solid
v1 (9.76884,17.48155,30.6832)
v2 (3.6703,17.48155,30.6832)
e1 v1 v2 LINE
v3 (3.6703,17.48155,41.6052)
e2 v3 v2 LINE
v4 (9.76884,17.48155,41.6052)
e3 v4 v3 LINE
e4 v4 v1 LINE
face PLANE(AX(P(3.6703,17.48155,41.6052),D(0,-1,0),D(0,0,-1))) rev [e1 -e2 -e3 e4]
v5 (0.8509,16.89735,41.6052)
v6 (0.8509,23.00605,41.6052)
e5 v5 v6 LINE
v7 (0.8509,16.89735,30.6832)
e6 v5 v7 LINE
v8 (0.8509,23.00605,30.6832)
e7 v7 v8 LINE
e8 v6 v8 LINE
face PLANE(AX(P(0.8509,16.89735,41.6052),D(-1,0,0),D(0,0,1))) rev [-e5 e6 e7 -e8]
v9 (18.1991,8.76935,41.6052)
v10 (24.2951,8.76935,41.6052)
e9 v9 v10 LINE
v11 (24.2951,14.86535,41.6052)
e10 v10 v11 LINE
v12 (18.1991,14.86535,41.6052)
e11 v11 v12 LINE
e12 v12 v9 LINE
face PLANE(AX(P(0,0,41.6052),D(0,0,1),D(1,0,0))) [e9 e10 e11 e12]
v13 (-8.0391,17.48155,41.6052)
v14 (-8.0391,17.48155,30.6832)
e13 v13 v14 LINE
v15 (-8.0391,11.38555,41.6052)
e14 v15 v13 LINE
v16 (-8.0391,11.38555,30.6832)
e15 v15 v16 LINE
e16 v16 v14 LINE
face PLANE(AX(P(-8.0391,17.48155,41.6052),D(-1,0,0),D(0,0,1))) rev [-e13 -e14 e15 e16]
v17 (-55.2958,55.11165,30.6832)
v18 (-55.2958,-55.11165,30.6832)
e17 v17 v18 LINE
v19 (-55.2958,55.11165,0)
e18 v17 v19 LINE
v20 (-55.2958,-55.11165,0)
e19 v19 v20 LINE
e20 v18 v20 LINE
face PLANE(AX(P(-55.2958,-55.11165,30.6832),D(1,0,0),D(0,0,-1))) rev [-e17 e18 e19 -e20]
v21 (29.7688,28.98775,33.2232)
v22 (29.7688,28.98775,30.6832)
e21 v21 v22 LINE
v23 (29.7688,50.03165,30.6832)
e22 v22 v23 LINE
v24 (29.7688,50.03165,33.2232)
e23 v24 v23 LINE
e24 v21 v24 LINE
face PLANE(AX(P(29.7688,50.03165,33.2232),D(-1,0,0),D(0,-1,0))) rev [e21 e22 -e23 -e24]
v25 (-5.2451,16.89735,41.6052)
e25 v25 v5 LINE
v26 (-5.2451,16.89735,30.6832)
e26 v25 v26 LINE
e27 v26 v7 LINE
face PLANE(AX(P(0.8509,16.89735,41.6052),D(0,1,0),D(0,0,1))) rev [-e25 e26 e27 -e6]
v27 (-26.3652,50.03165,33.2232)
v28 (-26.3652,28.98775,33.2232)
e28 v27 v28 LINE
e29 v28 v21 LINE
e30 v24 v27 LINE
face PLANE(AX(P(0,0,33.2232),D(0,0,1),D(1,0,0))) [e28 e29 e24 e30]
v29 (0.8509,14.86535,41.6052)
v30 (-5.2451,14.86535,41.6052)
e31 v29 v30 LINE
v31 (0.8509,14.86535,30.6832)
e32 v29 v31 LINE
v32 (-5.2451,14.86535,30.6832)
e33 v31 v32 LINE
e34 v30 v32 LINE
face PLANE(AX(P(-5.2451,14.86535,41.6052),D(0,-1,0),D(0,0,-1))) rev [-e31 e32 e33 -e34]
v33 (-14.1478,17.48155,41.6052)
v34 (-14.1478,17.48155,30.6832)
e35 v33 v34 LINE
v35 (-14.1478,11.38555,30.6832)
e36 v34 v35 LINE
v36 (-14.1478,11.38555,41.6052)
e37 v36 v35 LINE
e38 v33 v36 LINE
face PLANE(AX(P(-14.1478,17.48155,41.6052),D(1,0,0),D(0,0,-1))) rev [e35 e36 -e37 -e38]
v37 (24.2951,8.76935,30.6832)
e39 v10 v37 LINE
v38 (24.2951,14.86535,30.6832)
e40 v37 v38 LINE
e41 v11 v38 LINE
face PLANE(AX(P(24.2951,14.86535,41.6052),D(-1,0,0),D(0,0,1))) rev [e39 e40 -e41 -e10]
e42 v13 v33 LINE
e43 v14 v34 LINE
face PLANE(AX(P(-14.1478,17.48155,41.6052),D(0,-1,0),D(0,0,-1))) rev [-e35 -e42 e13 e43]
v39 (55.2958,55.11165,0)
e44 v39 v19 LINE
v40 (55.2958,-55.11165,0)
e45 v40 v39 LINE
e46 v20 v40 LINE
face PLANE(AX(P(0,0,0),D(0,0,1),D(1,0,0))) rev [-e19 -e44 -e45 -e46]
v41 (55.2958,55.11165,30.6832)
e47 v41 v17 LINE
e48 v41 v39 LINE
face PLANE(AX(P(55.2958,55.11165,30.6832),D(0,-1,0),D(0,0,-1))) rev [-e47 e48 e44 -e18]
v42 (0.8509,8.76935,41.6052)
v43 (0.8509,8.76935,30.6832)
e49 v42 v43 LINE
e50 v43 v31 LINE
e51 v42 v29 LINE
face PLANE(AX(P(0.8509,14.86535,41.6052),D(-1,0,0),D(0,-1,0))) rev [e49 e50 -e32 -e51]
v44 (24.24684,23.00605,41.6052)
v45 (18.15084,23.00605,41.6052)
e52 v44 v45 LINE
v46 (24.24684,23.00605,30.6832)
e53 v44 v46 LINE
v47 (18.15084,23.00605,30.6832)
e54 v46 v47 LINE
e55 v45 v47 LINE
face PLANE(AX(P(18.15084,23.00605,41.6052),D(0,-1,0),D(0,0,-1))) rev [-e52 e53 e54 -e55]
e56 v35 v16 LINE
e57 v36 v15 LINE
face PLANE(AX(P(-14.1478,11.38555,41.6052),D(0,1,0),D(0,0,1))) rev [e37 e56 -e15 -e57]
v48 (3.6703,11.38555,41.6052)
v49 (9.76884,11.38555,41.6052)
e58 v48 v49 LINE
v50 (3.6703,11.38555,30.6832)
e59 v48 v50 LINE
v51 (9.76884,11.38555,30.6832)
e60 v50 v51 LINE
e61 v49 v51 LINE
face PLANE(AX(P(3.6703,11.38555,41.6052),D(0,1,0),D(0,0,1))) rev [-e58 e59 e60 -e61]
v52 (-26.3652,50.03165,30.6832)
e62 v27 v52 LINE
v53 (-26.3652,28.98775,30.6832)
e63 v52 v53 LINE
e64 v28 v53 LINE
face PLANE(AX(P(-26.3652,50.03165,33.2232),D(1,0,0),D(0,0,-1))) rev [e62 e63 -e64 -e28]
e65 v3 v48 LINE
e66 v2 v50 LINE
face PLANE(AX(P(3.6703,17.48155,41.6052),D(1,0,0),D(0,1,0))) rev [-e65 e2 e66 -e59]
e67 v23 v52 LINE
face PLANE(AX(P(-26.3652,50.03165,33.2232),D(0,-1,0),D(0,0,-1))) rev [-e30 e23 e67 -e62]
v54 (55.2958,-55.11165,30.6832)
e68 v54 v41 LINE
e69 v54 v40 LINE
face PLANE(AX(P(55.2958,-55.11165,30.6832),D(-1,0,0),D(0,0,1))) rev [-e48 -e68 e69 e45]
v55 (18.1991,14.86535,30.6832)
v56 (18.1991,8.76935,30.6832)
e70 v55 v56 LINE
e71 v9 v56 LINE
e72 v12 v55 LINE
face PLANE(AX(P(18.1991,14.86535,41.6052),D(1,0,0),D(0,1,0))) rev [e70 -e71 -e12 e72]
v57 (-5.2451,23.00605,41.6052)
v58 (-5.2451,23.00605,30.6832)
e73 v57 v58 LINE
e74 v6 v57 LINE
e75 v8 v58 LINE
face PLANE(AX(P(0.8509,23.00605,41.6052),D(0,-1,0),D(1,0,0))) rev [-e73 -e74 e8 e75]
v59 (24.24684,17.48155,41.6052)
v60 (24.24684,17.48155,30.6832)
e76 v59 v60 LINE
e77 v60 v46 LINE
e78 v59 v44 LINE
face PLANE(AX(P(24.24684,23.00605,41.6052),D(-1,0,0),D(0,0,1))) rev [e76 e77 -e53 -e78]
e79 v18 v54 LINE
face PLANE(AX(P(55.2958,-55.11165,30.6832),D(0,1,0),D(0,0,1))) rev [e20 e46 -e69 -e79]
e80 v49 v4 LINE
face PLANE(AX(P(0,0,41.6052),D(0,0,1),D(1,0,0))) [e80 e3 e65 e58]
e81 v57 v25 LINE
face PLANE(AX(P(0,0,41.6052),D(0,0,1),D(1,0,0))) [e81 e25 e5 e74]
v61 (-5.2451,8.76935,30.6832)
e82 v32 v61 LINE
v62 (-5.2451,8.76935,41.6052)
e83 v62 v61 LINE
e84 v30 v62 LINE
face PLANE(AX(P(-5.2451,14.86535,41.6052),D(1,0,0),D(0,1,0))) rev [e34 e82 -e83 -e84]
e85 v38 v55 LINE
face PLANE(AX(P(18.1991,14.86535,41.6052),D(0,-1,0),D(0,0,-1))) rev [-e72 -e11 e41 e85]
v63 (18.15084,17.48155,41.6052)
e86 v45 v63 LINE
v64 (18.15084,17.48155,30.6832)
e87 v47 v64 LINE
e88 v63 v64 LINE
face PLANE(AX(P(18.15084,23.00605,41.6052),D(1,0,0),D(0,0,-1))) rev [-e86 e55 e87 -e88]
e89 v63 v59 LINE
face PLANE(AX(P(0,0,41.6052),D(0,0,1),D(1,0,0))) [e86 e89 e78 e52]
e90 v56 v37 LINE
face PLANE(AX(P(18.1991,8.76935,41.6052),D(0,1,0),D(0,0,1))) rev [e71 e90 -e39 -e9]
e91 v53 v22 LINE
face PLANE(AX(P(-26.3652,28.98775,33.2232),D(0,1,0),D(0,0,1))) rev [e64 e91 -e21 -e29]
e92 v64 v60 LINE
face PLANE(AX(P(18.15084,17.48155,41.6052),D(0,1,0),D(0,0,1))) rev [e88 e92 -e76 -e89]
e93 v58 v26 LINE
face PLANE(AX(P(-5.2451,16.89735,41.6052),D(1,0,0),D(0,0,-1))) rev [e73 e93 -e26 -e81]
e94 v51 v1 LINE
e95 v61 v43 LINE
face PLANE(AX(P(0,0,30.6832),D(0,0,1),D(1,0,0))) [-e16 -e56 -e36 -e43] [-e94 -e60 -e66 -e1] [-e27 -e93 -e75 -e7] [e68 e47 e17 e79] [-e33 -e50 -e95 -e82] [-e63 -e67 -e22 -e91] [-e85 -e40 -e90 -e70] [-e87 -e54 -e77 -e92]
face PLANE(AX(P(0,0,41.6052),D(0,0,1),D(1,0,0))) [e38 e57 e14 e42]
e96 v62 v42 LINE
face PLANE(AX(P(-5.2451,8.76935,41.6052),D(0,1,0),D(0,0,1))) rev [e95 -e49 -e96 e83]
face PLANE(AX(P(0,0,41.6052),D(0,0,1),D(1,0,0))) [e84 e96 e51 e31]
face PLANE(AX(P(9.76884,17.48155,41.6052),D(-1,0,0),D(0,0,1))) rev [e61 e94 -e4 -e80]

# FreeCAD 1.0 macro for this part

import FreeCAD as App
import Part
import Sketcher
Q = App.Units.Quantity

doc = App.newDocument("Part")
params = doc.addObject("Spreadsheet::Sheet", "Params")
for row, (alias, value) in enumerate([
    ("sketch1_width", "4.354 in"),
    ("pad1_length", "1.208 in"),
    ("sketch2_width", "2.21 in"),
    ("pad2_length", "0.1 in"),
    ("sketch3_width", "0.24 in"),
    ("pad3_length", "0.43 in"),
], start=1):
    params.set(f"A{row}", alias)
    params.set(f"B{row}", "=" + value)
    params.setAlias(f"B{row}", alias)

body = doc.addObject("PartDesign::Body", "Body")

# Sketch on XY plane
sketch1 = body.newObject("Sketcher::SketchObject", "Sketch")
sketch1.AttachmentSupport = (doc.getObject("XY_Plane"), [""])
sketch1.MapMode = "FlatFace"
sketch1.addGeometry([
    Part.LineSegment(App.Vector(-55, 55, 0), App.Vector(-55, -55, 0)),
    Part.LineSegment(App.Vector(-55, -55, 0), App.Vector(55, -55, 0)),
    Part.LineSegment(App.Vector(55, -55, 0), App.Vector(55, 55, 0)),
    Part.LineSegment(App.Vector(55, 55, 0), App.Vector(-55, 55, 0)),
], False)
sketch1.addConstraint([
    Sketcher.Constraint("Coincident", 0, 2, 1, 1),
    Sketcher.Constraint("Coincident", 1, 2, 2, 1),
    Sketcher.Constraint("Coincident", 2, 2, 3, 1),
    Sketcher.Constraint("Coincident", 3, 2, 0, 1),
    Sketcher.Constraint("Vertical", 0),
    Sketcher.Constraint("Horizontal", 1),
    Sketcher.Constraint("Vertical", 2),
    Sketcher.Constraint("Horizontal", 3),
    Sketcher.Constraint("Symmetric", 0, 2, 2, 2, -1, 1),
    Sketcher.Constraint("DistanceX", 1, 1, 1, 2, Q("4.354 in")),
    Sketcher.Constraint("DistanceY", 0, 2, 0, 1, Q("4.3395 in")),
])
sketch1.setExpression("Constraints[9]", "Params.sketch1_width")
pad1 = body.newObject("PartDesign::Pad", "Pad")
pad1.Profile = sketch1
pad1.setExpression("Length", "Params.pad1_length")

# Sketch on XY plane
sketch2 = body.newObject("Sketcher::SketchObject", "Sketch001")
sketch2.AttachmentSupport = (doc.getObject("XY_Plane"), [""])
sketch2.MapMode = "FlatFace"
sketch2.AttachmentOffset = App.Placement(App.Vector(0, 0, 1.208 * 25.4), App.Rotation())
sketch2.addGeometry([
    Part.LineSegment(App.Vector(-26, 50, 0), App.Vector(-26, 29, 0)),
    Part.LineSegment(App.Vector(-26, 29, 0), App.Vector(30, 29, 0)),
    Part.LineSegment(App.Vector(30, 29, 0), App.Vector(30, 50, 0)),
    Part.LineSegment(App.Vector(30, 50, 0), App.Vector(-26, 50, 0)),
], False)
sketch2.addConstraint([
    Sketcher.Constraint("Coincident", 0, 2, 1, 1),
    Sketcher.Constraint("Coincident", 1, 2, 2, 1),
    Sketcher.Constraint("Coincident", 2, 2, 3, 1),
    Sketcher.Constraint("Coincident", 3, 2, 0, 1),
    Sketcher.Constraint("Vertical", 0),
    Sketcher.Constraint("Horizontal", 1),
    Sketcher.Constraint("Vertical", 2),
    Sketcher.Constraint("Horizontal", 3),
    Sketcher.Constraint("DistanceX", 1, 1, 1, 2, Q("2.21 in")),
    Sketcher.Constraint("DistanceY", 0, 2, 0, 1, Q("0.8285 in")),
    Sketcher.Constraint("DistanceX", 0, 2, -1, 1, Q("1.038 in")),
    Sketcher.Constraint("DistanceY", -1, 1, 0, 2, 28.98775),
])
sketch2.setExpression("Constraints[8]", "Params.sketch2_width")
pad2 = body.newObject("PartDesign::Pad", "Pad001")
pad2.Profile = sketch2
pad2.setExpression("Length", "Params.pad2_length")

# Sketch on XY plane
sketch3 = body.newObject("Sketcher::SketchObject", "Sketch002")
sketch3.AttachmentSupport = (doc.getObject("XY_Plane"), [""])
sketch3.MapMode = "FlatFace"
sketch3.AttachmentOffset = App.Placement(App.Vector(0, 0, 1.208 * 25.4), App.Rotation())
sketch3.addGeometry([
    Part.LineSegment(App.Vector(-5, 23, 0), App.Vector(-5, 17, 0)),  # 0
    Part.LineSegment(App.Vector(-5, 17, 0), App.Vector(1, 17, 0)),  # 1
    Part.LineSegment(App.Vector(1, 17, 0), App.Vector(1, 23, 0)),  # 2
    Part.LineSegment(App.Vector(1, 23, 0), App.Vector(-5, 23, 0)),  # 3
    Part.LineSegment(App.Vector(-14, 17, 0), App.Vector(-14, 11, 0)),  # 4
    Part.LineSegment(App.Vector(-14, 11, 0), App.Vector(-8, 11, 0)),  # 5
    Part.LineSegment(App.Vector(-8, 11, 0), App.Vector(-8, 17, 0)),  # 6
    Part.LineSegment(App.Vector(-8, 17, 0), App.Vector(-14, 17, 0)),  # 7
    Part.LineSegment(App.Vector(4, 17, 0), App.Vector(4, 11, 0)),  # 8
    Part.LineSegment(App.Vector(4, 11, 0), App.Vector(10, 11, 0)),  # 9
    Part.LineSegment(App.Vector(10, 11, 0), App.Vector(10, 17, 0)),  # 10
    Part.LineSegment(App.Vector(10, 17, 0), App.Vector(4, 17, 0)),  # 11
    Part.LineSegment(App.Vector(-5, 15, 0), App.Vector(-5, 9, 0)),  # 12
    Part.LineSegment(App.Vector(-5, 9, 0), App.Vector(1, 9, 0)),  # 13
    Part.LineSegment(App.Vector(1, 9, 0), App.Vector(1, 15, 0)),  # 14
    Part.LineSegment(App.Vector(1, 15, 0), App.Vector(-5, 15, 0)),  # 15
    Part.LineSegment(App.Vector(18, 23, 0), App.Vector(18, 17, 0)),  # 16
    Part.LineSegment(App.Vector(18, 17, 0), App.Vector(24, 17, 0)),  # 17
    Part.LineSegment(App.Vector(24, 17, 0), App.Vector(24, 23, 0)),  # 18
    Part.LineSegment(App.Vector(24, 23, 0), App.Vector(18, 23, 0)),  # 19
    Part.LineSegment(App.Vector(18, 15, 0), App.Vector(18, 9, 0)),  # 20
    Part.LineSegment(App.Vector(18, 9, 0), App.Vector(24, 9, 0)),  # 21
    Part.LineSegment(App.Vector(24, 9, 0), App.Vector(24, 15, 0)),  # 22
    Part.LineSegment(App.Vector(24, 15, 0), App.Vector(18, 15, 0)),  # 23
], False)
sketch3.addConstraint([
    Sketcher.Constraint("Coincident", 0, 2, 1, 1),
    Sketcher.Constraint("Coincident", 1, 2, 2, 1),
    Sketcher.Constraint("Coincident", 2, 2, 3, 1),
    Sketcher.Constraint("Coincident", 3, 2, 0, 1),
    Sketcher.Constraint("Coincident", 4, 2, 5, 1),
    Sketcher.Constraint("Coincident", 5, 2, 6, 1),
    Sketcher.Constraint("Coincident", 6, 2, 7, 1),
    Sketcher.Constraint("Coincident", 7, 2, 4, 1),
    Sketcher.Constraint("Coincident", 8, 2, 9, 1),
    Sketcher.Constraint("Coincident", 9, 2, 10, 1),
    Sketcher.Constraint("Coincident", 10, 2, 11, 1),
    Sketcher.Constraint("Coincident", 11, 2, 8, 1),
    Sketcher.Constraint("Coincident", 12, 2, 13, 1),
    Sketcher.Constraint("Coincident", 13, 2, 14, 1),
    Sketcher.Constraint("Coincident", 14, 2, 15, 1),
    Sketcher.Constraint("Coincident", 15, 2, 12, 1),
    Sketcher.Constraint("Coincident", 16, 2, 17, 1),
    Sketcher.Constraint("Coincident", 17, 2, 18, 1),
    Sketcher.Constraint("Coincident", 18, 2, 19, 1),
    Sketcher.Constraint("Coincident", 19, 2, 16, 1),
    Sketcher.Constraint("Coincident", 20, 2, 21, 1),
    Sketcher.Constraint("Coincident", 21, 2, 22, 1),
    Sketcher.Constraint("Coincident", 22, 2, 23, 1),
    Sketcher.Constraint("Coincident", 23, 2, 20, 1),
    Sketcher.Constraint("Vertical", 0),
    Sketcher.Constraint("Horizontal", 1),
    Sketcher.Constraint("Vertical", 2),
    Sketcher.Constraint("Horizontal", 3),
    Sketcher.Constraint("Vertical", 4),
    Sketcher.Constraint("Horizontal", 5),
    Sketcher.Constraint("Vertical", 6),
    Sketcher.Constraint("Horizontal", 7),
    Sketcher.Constraint("Vertical", 8),
    Sketcher.Constraint("Horizontal", 9),
    Sketcher.Constraint("Vertical", 10),
    Sketcher.Constraint("Horizontal", 11),
    Sketcher.Constraint("Vertical", 12),
    Sketcher.Constraint("Horizontal", 13),
    Sketcher.Constraint("Vertical", 14),
    Sketcher.Constraint("Horizontal", 15),
    Sketcher.Constraint("Vertical", 16),
    Sketcher.Constraint("Horizontal", 17),
    Sketcher.Constraint("Vertical", 18),
    Sketcher.Constraint("Horizontal", 19),
    Sketcher.Constraint("Vertical", 20),
    Sketcher.Constraint("Horizontal", 21),
    Sketcher.Constraint("Vertical", 22),
    Sketcher.Constraint("Horizontal", 23),
    Sketcher.Constraint("Horizontal", 5, 2, 8, 2),
    Sketcher.Constraint("Horizontal", 7, 2, 10, 2),
    Sketcher.Constraint("Horizontal", 11, 2, 16, 2),
    Sketcher.Constraint("Horizontal", 3, 2, 18, 2),
    Sketcher.Constraint("Horizontal", 13, 2, 20, 2),
    Sketcher.Constraint("Horizontal", 15, 2, 22, 2),
    Sketcher.Constraint("Vertical", 3, 2, 12, 2),
    Sketcher.Constraint("Vertical", 2, 2, 13, 2),
    Sketcher.Constraint("Equal", 15, 17),
    Sketcher.Constraint("Equal", 19, 21),
    Sketcher.Constraint("Equal", 7, 0),
    Sketcher.Constraint("Equal", 23, 4),
    Sketcher.Constraint("Equal", 10, 12),
    Sketcher.Constraint("DistanceX", 1, 1, 1, 2, Q("0.24 in")),
    Sketcher.Constraint("DistanceX", 5, 2, 0, 2, Q("0.11 in")),
    Sketcher.Constraint("DistanceY", 12, 2, 0, 2, Q("0.32 in")),
    Sketcher.Constraint("DistanceX", 10, 2, 16, 2, Q("0.33 in")),
    Sketcher.Constraint("DistanceX", 5, 1, 5, 2, Q("0.2405 in")),
    Sketcher.Constraint("DistanceX", 9, 1, 9, 2, Q("0.2401 in")),
    Sketcher.Constraint("DistanceY", 16, 2, 16, 1, Q("0.2175 in")),
    Sketcher.Constraint("DistanceX", 4, 2, -1, 1, Q("0.557 in")),
    Sketcher.Constraint("DistanceX", 1, 2, 8, 2, Q("0.111 in")),
    Sketcher.Constraint("DistanceX", -1, 1, 20, 2, Q("0.7165 in")),
    Sketcher.Constraint("DistanceY", -1, 1, 0, 2, 16.89735),
])
sketch3.setExpression("Constraints[61]", "Params.sketch3_width")
pad3 = body.newObject("PartDesign::Pad", "Pad002")
pad3.Profile = sketch3
pad3.setExpression("Length", "Params.pad3_length")

doc.recompute()
